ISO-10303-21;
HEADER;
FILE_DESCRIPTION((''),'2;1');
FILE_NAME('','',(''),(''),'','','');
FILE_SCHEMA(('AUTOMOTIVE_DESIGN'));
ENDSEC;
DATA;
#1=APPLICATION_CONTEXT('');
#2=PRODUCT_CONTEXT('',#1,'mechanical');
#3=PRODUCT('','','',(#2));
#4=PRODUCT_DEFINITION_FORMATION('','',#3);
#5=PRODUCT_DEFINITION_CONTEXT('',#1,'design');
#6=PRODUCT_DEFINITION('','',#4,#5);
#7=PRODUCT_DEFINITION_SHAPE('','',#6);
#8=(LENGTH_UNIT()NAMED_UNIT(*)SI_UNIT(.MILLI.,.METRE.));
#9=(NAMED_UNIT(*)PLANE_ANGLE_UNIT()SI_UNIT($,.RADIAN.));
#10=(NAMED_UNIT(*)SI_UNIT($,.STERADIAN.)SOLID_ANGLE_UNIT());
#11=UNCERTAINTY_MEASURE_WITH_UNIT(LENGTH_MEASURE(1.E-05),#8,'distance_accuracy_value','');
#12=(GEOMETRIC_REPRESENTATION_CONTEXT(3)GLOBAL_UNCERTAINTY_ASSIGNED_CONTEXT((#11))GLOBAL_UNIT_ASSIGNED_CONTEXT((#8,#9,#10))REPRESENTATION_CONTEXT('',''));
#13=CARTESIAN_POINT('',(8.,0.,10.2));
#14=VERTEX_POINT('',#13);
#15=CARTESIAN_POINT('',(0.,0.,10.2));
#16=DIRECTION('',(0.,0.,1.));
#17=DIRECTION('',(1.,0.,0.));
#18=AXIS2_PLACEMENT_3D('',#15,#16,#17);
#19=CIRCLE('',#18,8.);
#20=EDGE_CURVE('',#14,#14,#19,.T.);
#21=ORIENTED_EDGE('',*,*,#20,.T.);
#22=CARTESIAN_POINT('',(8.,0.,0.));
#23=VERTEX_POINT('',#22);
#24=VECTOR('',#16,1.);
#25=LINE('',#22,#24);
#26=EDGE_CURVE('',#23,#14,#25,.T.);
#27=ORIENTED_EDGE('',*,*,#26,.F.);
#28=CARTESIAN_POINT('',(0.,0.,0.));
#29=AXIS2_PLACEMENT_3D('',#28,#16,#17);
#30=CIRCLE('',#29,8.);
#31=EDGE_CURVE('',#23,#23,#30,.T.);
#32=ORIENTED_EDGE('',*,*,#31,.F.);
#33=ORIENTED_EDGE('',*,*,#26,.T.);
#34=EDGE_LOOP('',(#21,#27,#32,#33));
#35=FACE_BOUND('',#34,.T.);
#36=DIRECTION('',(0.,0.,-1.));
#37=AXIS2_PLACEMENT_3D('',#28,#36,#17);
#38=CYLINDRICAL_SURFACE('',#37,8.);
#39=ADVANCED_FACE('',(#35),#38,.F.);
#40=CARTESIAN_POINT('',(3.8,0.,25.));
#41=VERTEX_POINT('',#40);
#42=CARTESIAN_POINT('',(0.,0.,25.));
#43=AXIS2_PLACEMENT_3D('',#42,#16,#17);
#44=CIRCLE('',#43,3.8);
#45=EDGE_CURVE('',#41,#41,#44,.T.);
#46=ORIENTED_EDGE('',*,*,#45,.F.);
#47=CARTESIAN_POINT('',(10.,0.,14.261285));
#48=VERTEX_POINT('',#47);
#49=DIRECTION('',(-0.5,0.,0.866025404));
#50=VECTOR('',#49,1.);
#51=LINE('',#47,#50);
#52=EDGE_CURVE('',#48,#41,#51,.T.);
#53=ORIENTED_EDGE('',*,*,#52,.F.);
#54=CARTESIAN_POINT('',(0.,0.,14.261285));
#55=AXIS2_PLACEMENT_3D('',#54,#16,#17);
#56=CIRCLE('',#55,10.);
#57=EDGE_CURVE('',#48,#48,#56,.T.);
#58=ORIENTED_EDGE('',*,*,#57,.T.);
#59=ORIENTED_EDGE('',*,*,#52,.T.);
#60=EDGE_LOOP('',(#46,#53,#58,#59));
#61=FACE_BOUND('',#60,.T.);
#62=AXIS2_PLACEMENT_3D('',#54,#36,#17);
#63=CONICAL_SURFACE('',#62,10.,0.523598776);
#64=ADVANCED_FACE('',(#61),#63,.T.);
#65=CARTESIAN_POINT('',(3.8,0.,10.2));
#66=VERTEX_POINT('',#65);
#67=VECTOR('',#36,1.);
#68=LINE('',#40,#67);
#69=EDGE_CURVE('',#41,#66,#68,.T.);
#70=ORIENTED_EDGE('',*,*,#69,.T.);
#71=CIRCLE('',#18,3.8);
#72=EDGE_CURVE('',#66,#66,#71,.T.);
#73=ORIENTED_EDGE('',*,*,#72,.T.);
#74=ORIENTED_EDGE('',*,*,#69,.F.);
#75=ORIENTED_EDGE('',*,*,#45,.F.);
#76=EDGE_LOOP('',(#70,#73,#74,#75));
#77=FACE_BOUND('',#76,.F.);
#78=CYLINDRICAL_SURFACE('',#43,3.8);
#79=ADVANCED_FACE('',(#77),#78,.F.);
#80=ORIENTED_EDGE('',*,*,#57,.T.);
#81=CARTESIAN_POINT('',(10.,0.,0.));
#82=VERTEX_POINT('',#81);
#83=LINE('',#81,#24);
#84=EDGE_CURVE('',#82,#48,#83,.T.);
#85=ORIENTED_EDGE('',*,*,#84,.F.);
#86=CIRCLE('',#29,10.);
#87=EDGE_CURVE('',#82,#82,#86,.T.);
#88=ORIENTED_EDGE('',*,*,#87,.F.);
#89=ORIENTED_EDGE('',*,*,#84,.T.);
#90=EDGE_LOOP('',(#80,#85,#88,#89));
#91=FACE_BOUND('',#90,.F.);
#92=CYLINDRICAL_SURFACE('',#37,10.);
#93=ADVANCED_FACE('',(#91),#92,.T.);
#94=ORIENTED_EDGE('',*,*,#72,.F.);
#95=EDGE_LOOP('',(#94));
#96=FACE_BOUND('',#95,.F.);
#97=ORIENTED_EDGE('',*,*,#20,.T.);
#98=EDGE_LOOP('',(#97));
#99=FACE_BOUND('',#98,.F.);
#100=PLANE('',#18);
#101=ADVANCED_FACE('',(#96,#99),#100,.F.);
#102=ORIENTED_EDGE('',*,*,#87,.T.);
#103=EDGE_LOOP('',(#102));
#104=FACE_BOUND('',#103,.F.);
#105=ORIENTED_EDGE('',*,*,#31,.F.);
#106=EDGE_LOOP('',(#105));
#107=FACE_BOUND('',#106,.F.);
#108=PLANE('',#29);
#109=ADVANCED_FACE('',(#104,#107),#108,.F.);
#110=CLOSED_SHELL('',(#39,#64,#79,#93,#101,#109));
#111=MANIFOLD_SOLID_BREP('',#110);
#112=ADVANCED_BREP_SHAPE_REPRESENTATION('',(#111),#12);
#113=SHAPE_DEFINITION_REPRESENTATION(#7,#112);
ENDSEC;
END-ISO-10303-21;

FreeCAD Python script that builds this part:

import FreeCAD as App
import Part
import Sketcher
from FreeCAD import Vector
Q = App.Units.Quantity


def edges_at(feature, points):
    """Names of the edges that pass closest to the given points."""
    edges = feature.Shape.Edges
    near = lambda p: min(range(len(edges)), key=lambda i: edges[i].distToShape(Part.Vertex(*p))[0])
    return sorted({f"Edge{near(p) + 1}" for p in points})

doc = App.newDocument("Part")
params = doc.addObject("Spreadsheet::Sheet", "Params")
for row, (alias, value) in enumerate([
    ("sketch1_diameter", "20 mm"),
    ("pad1_length", "25 mm"),
    ("chamfer_size", "10.738715 mm"),
    ("chamfer_size2", "6.2 mm"),
    ("sketch2_diameter", "7.6 mm"),
    ("pocket1_length", "40.7 mm"),
    ("sketch3_diameter", "16 mm"),
    ("pocket2_length", "10.2 mm"),
], start=1):
    params.set(f"A{row}", alias)
    params.set(f"B{row}", "=" + value)
    params.setAlias(f"B{row}", alias)

body = doc.addObject("PartDesign::Body", "Body")

sketch1 = doc.addObject("Sketcher::SketchObject", "Sketch")
body.addObject(sketch1)
sketch1.AttachmentSupport = (doc.XY_Plane, [""])
sketch1.MapMode = "FlatFace"
sketch1.addGeometry(Part.Circle(Vector(0, 0, 0), Vector(0, 0, 1), 10), False)
sketch1.addConstraint([
    Sketcher.Constraint("Coincident", 0, 3, -1, 1),
    Sketcher.Constraint("Diameter", 0, Q("20 mm")),
])
sketch1.setExpression("Constraints[1]", "Params.sketch1_diameter")
pad1 = doc.addObject("PartDesign::Pad", "Pad")
body.addObject(pad1)
pad1.Profile = sketch1
pad1.setExpression("Length", "Params.pad1_length")
doc.recompute()

chamfer = doc.addObject("PartDesign::Chamfer", "Chamfer")
body.addObject(chamfer)
chamfer.Base = (pad1, edges_at(pad1, [(-10, 0, 25)]))
chamfer.ChamferType = "Two distances"
chamfer.setExpression("Size", "Params.chamfer_size")
chamfer.setExpression("Size2", "Params.chamfer_size2")

sketch2 = doc.addObject("Sketcher::SketchObject", "Sketch001")
body.addObject(sketch2)
sketch2.AttachmentSupport = (doc.XY_Plane, [""])
sketch2.MapMode = "FlatFace"
sketch2.AttachmentOffset = App.Placement(Vector(0, 0, 25), App.Rotation())
sketch2.addGeometry(Part.Circle(Vector(0, 0, 0), Vector(0, 0, 1), 3.8), False)
sketch2.addConstraint([
    Sketcher.Constraint("Coincident", 0, 3, -1, 1),
    Sketcher.Constraint("Diameter", 0, Q("7.6 mm")),
])
sketch2.setExpression("Constraints[1]", "Params.sketch2_diameter")
pocket1 = doc.addObject("PartDesign::Pocket", "Pocket")
body.addObject(pocket1)
pocket1.Profile = sketch2
pocket1.setExpression("Length", "Params.pocket1_length")

sketch3 = doc.addObject("Sketcher::SketchObject", "Sketch002")
body.addObject(sketch3)
sketch3.AttachmentSupport = (doc.XY_Plane, [""])
sketch3.MapMode = "FlatFace"
sketch3.addGeometry(Part.Circle(Vector(0, 0, 0), Vector(0, 0, 1), 8), False)
sketch3.addConstraint([
    Sketcher.Constraint("Coincident", 0, 3, -1, 1),
    Sketcher.Constraint("Diameter", 0, Q("16 mm")),
])
sketch3.setExpression("Constraints[1]", "Params.sketch3_diameter")
pocket2 = doc.addObject("PartDesign::Pocket", "Pocket001")
body.addObject(pocket2)
pocket2.Profile = sketch3
pocket2.setExpression("Length", "Params.pocket2_length")
pocket2.Reversed = True

doc.recompute()
